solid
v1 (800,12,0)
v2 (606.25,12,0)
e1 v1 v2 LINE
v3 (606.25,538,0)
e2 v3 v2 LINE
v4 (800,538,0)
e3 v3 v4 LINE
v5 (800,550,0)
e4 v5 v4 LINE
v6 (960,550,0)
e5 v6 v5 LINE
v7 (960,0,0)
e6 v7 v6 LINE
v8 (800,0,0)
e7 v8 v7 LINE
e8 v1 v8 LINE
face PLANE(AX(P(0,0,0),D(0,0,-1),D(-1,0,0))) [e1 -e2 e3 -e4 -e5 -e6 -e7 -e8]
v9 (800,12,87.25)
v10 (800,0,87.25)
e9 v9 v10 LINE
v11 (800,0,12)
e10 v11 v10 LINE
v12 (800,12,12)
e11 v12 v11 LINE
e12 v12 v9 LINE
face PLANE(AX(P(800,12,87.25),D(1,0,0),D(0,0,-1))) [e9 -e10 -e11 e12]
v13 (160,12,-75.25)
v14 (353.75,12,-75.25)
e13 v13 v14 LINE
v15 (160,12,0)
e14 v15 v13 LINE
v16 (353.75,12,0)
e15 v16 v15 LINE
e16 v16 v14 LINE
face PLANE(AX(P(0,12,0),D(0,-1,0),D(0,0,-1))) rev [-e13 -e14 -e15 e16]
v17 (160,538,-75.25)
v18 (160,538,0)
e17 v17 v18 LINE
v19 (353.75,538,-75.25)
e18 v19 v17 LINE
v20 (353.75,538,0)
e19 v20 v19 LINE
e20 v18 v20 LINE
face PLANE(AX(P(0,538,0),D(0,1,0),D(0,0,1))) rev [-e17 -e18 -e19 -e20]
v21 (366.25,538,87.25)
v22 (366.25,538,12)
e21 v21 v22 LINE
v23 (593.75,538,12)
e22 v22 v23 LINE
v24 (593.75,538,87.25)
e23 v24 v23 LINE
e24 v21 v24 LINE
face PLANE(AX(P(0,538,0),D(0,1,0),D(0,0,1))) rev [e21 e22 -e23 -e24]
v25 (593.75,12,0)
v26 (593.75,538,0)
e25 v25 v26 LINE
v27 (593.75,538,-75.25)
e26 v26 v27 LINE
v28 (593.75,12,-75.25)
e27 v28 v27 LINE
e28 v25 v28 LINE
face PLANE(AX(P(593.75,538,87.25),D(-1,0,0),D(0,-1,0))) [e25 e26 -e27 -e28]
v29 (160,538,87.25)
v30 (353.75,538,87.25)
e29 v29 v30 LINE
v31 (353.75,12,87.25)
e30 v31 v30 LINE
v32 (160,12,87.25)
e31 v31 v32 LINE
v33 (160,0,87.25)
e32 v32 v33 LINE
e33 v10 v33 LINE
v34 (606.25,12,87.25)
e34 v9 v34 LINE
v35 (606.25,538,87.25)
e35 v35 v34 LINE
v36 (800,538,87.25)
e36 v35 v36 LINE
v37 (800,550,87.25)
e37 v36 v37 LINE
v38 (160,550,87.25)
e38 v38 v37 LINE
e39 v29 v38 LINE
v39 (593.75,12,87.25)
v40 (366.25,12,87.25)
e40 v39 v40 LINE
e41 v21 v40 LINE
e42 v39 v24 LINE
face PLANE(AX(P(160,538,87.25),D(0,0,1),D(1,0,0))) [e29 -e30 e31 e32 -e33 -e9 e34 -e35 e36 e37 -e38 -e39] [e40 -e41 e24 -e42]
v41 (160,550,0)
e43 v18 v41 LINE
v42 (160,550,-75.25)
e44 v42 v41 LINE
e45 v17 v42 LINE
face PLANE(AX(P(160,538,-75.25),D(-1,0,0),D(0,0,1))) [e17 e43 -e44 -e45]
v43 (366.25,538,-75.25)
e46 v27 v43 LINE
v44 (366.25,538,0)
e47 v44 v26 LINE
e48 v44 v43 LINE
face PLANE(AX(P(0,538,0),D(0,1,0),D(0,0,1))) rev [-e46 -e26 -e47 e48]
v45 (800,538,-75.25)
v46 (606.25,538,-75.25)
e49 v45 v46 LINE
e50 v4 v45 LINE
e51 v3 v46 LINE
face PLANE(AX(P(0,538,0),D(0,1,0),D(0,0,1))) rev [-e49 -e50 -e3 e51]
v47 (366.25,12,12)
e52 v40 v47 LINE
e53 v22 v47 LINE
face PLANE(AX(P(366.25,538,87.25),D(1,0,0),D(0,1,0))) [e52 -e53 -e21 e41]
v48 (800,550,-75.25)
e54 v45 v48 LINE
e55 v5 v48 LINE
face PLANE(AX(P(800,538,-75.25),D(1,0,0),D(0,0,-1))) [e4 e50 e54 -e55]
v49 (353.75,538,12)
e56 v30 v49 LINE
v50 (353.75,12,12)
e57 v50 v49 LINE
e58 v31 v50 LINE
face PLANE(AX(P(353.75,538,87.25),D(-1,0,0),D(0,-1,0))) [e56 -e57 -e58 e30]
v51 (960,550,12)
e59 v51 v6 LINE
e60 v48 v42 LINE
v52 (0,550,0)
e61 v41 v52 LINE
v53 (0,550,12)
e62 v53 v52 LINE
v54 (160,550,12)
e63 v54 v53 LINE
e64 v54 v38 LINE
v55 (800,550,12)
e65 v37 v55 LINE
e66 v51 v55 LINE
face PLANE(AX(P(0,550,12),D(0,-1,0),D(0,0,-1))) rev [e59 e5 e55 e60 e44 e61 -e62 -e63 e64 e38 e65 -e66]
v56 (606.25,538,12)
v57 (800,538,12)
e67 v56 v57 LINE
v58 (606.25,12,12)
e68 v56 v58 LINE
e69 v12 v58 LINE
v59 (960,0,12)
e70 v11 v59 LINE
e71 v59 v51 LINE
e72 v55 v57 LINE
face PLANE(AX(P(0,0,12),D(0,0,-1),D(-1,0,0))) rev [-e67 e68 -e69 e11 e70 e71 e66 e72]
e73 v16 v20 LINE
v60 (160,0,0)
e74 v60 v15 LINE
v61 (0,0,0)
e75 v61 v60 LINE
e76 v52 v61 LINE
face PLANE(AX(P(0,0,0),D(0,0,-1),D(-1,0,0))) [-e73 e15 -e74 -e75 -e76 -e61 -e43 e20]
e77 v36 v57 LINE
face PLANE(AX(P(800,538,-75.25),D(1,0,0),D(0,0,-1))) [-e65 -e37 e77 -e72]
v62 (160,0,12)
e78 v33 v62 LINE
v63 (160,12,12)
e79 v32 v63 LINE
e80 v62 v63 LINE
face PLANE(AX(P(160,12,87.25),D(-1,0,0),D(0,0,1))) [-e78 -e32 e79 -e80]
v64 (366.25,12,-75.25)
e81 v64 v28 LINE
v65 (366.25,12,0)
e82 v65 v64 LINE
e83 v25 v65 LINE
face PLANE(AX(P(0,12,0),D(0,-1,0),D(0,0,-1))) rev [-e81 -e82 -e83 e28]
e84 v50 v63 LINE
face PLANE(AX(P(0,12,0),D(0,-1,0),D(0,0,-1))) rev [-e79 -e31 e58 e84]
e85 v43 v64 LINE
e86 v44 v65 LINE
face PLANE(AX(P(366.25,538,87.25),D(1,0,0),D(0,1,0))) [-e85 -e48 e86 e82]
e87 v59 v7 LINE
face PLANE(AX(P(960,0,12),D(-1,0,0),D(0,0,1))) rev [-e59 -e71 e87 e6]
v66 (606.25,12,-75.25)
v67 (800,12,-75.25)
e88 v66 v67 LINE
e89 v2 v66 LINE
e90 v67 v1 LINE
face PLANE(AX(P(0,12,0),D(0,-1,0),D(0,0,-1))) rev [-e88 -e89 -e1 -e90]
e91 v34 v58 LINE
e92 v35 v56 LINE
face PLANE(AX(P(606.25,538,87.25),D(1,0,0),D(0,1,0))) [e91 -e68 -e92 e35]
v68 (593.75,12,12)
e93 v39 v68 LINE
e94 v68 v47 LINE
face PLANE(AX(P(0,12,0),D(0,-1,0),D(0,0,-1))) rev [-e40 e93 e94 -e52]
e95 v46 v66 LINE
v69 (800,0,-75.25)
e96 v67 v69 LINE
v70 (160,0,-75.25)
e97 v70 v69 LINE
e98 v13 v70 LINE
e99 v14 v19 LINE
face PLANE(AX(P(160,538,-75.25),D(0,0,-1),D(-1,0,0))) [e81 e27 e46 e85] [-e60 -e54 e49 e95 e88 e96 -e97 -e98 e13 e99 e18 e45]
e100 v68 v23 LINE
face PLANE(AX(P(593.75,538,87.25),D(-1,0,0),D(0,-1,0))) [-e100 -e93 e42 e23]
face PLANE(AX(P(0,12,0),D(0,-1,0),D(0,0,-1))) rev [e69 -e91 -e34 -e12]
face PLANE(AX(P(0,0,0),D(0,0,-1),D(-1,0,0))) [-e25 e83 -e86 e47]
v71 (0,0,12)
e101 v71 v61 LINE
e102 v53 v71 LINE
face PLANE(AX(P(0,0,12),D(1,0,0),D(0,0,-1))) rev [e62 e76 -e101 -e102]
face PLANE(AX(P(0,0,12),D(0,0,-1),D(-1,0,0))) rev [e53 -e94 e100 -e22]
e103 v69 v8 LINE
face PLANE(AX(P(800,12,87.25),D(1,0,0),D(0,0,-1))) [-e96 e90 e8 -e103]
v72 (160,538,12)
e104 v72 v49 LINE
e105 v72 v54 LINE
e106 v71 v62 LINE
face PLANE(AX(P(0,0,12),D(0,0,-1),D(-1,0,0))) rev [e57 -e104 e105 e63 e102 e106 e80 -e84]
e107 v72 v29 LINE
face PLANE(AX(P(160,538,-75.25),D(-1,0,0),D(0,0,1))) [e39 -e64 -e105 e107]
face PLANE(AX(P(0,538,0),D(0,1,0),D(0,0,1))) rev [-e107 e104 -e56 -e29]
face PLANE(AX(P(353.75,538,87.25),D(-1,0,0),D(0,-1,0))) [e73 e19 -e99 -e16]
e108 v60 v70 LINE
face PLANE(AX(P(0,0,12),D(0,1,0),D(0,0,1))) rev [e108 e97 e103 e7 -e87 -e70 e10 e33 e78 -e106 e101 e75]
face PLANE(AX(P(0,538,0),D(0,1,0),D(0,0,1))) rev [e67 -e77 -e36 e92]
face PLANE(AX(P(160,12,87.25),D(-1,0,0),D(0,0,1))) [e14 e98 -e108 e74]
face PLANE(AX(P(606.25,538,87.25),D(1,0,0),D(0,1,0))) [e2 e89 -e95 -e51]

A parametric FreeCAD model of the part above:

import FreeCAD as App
import Part
import Sketcher
from FreeCAD import Vector
Q = App.Units.Quantity


def add_polygon(sketch, points):
    """Adds a closed chain of lines whose ends are joined by coincident constraints."""
    first, n = sketch.GeometryCount, len(points)
    for a, b in zip(points, points[1:] + points[:1]):
        sketch.addGeometry(Part.LineSegment(App.Vector(*a, 0), App.Vector(*b, 0)), False)
    for i in range(n):
        sketch.addConstraint(Sketcher.Constraint("Coincident", first + i, 2, first + (i + 1) % n, 1))

doc = App.newDocument("Part")
body = doc.addObject("PartDesign::Body", "Body")

# Sketch on XY plane
sketch1 = body.newObject("Sketcher::SketchObject", "Sketch")
sketch1.AttachmentSupport = (doc.getObject("XY_Plane"), [""])
sketch1.MapMode = "FlatFace"
add_polygon(sketch1, [(0, 550), (0, 0), (960, 0), (960, 550)])  # lines 0-3
sketch1.addConstraint([
    Sketcher.Constraint("Vertical", 0),
    Sketcher.Constraint("Horizontal", 1),
    Sketcher.Constraint("Vertical", 2),
    Sketcher.Constraint("Horizontal", 3),
    Sketcher.Constraint("Coincident", 0, 2, -1, 1),
    Sketcher.Constraint("DistanceX", 1, 1, 1, 2, Q("960 mm")),
    Sketcher.Constraint("DistanceY", 0, 2, 0, 1, Q("550 mm")),
])
pad1 = body.newObject("PartDesign::Pad", "Pad")
pad1.Profile = sketch1
pad1.Length = 12

# Sketch on XZ plane
sketch2 = body.newObject("Sketcher::SketchObject", "Sketch001")
sketch2.AttachmentSupport = (doc.getObject("XZ_Plane"), [""])
sketch2.MapMode = "FlatFace"
sketch2.AttachmentOffset = App.Placement(Vector(0, 0, -550), App.Rotation())
add_polygon(sketch2, [(160, -75.25), (160, 87.25), (800, 87.25), (800, -75.25)])  # lines 0-3
sketch2.addConstraint([
    Sketcher.Constraint("Vertical", 0),
    Sketcher.Constraint("Horizontal", 1),
    Sketcher.Constraint("Vertical", 2),
    Sketcher.Constraint("Horizontal", 3),
    Sketcher.Constraint("DistanceX", 1, 1, 1, 2, Q("640 mm")),
    Sketcher.Constraint("DistanceY", 0, 1, 0, 2, Q("162.5 mm")),
    Sketcher.Constraint("DistanceX", -1, 1, 0, 2, Q("160 mm")),
    Sketcher.Constraint("DistanceY", -1, 1, 0, 2, Q("87.25 mm")),
])
pad2 = body.newObject("PartDesign::Pad", "Pad001")
pad2.Profile = sketch2
pad2.Length = 12

# Sketch on XZ plane
sketch3 = body.newObject("Sketcher::SketchObject", "Sketch002")
sketch3.AttachmentSupport = (doc.getObject("XZ_Plane"), [""])
sketch3.MapMode = "FlatFace"
add_polygon(sketch3, [(160, 87.25), (160, -75.25), (800, -75.25), (800, 87.25)])  # lines 0-3
sketch3.addConstraint([
    Sketcher.Constraint("Vertical", 0),
    Sketcher.Constraint("Horizontal", 1),
    Sketcher.Constraint("Vertical", 2),
    Sketcher.Constraint("Horizontal", 3),
    Sketcher.Constraint("DistanceX", 1, 1, 1, 2, Q("640 mm")),
    Sketcher.Constraint("DistanceY", 0, 2, 0, 1, Q("162.5 mm")),
    Sketcher.Constraint("DistanceX", -1, 1, 0, 2, Q("160 mm")),
    Sketcher.Constraint("DistanceY", 0, 2, -1, 1, Q("75.25 mm")),
])
pad3 = body.newObject("PartDesign::Pad", "Pad002")
pad3.Profile = sketch3
pad3.Length = 12
pad3.Reversed = True

# Sketch on XY plane
sketch4 = body.newObject("Sketcher::SketchObject", "Sketch003")
sketch4.AttachmentSupport = (doc.getObject("XY_Plane"), [""])
sketch4.MapMode = "FlatFace"
sketch4.AttachmentOffset = App.Placement(Vector(0, 0, -75.25), App.Rotation())
add_polygon(sketch4, [(606.25, 538), (606.25, 12), (593.75, 12), (593.75, 538)])  # lines 0-3
add_polygon(sketch4, [(366.25, 538), (366.25, 12), (353.75, 12), (353.75, 538)])  # lines 4-7
sketch4.addConstraint([
    Sketcher.Constraint("Vertical", 0),
    Sketcher.Constraint("Horizontal", 1),
    Sketcher.Constraint("Vertical", 2),
    Sketcher.Constraint("Horizontal", 3),
    Sketcher.Constraint("Vertical", 4),
    Sketcher.Constraint("Horizontal", 5),
    Sketcher.Constraint("Vertical", 6),
    Sketcher.Constraint("Horizontal", 7),
    Sketcher.Constraint("Horizontal", 1, 2, 4, 2),
    Sketcher.Constraint("Horizontal", 3, 2, 6, 2),
    Sketcher.Constraint("Equal", 3, 5),
    Sketcher.Constraint("DistanceY", 0, 2, 0, 1, Q("526 mm")),
    Sketcher.Constraint("DistanceX", 1, 2, 1, 1, Q("12.5 mm")),
    Sketcher.Constraint("DistanceY", -1, 1, 0, 2, Q("12 mm")),
    Sketcher.Constraint("DistanceX", 4, 2, 0, 2, Q("240 mm")),
    Sketcher.Constraint("DistanceX", -1, 1, 0, 2, Q("606.25 mm")),
])
pad4 = body.newObject("PartDesign::Pad", "Pad003")
pad4.Profile = sketch4
pad4.Length = 162.5

doc.recompute()
